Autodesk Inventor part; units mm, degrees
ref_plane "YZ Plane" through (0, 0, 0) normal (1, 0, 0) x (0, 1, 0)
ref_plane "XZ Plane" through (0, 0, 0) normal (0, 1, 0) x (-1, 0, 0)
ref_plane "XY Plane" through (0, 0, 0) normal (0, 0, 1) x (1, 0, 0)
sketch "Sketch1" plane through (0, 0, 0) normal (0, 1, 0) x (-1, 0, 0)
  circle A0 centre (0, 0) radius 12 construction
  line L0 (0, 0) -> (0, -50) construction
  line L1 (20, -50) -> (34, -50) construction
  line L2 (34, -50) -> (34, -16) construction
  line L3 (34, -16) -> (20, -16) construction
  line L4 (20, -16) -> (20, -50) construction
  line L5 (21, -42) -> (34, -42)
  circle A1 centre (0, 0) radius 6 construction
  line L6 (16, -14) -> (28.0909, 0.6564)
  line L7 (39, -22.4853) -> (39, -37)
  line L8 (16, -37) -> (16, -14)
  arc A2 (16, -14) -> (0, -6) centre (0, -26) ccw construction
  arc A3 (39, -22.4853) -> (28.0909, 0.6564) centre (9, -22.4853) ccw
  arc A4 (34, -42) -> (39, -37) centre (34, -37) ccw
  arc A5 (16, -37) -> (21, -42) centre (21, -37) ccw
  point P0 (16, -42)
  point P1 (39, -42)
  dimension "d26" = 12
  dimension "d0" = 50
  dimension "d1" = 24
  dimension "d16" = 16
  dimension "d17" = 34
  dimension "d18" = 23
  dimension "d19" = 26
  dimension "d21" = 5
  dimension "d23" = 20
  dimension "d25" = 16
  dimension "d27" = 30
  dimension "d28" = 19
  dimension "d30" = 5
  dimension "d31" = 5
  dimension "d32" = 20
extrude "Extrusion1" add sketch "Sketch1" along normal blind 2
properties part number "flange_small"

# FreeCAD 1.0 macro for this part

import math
import FreeCAD as App
import Part
import Sketcher

V = App.Vector
Q = App.Units.Quantity

doc = App.newDocument("Part")
body = doc.addObject("PartDesign::Body", "Body")

# Sketch on XZ plane
sketch1 = doc.addObject("Sketcher::SketchObject", "Sketch")
body.addObject(sketch1)
sketch1.AttachmentSupport = (doc.XZ_Plane, [""])
sketch1.MapMode = "FlatFace"
sketch1.addGeometry([
    Part.ArcOfCircle(Part.Circle(V(-21, -37, 0), V(0, 0, 1), 5), math.radians(-90), math.radians(0)),  # 0
    Part.LineSegment(V(-21, -42, 0), V(-34, -42, 0)),  # 1
    Part.ArcOfCircle(Part.Circle(V(-34, -37, 0), V(0, 0, 1), 5), math.radians(180), math.radians(270)),  # 2
    Part.LineSegment(V(-39, -37, 0), V(-39, -22, 0)),  # 3
    Part.ArcOfCircle(Part.Circle(V(-9, -22, 0), V(0, 0, 1), 30), math.radians(130), math.radians(180)),  # 4
    Part.LineSegment(V(-28, 1, 0), V(-16, -14, 0)),  # 5
    Part.LineSegment(V(-16, -14, 0), V(-16, -37, 0)),  # 6
], False)
sketch1.addConstraint([
    Sketcher.Constraint("Tangent", 0, 1, 1, 1),
    Sketcher.Constraint("Tangent", 1, 2, 2, 2),
    Sketcher.Constraint("Tangent", 2, 1, 3, 1),
    Sketcher.Constraint("Tangent", 3, 2, 4, 2),
    Sketcher.Constraint("Coincident", 4, 1, 5, 1),
    Sketcher.Constraint("Coincident", 5, 2, 6, 1),
    Sketcher.Constraint("Tangent", 6, 2, 0, 2),
    Sketcher.Constraint("Horizontal", 1),
    Sketcher.Constraint("Vertical", 3),
    Sketcher.Constraint("Vertical", 6),
    Sketcher.Constraint("Equal", 0, 2),
    Sketcher.Constraint("Radius", 0, 5.0),
    Sketcher.Constraint("Radius", 4, 30.0),
    Sketcher.Constraint("DistanceY", 6, 2, 6, 1, 23.0),
    Sketcher.Constraint("Distance", 5, 19.0),
    Sketcher.Constraint("DistanceX", 2, 3, -1, 1, 34.0),
    Sketcher.Constraint("DistanceX", 5, 2, -1, 1, 16.0),
    Sketcher.Constraint("DistanceY", 0, 3, -1, 1, 37.0),
    Sketcher.Constraint("Angle", 5, Q("-50.4788 deg")),
])
pad1 = doc.addObject("PartDesign::Pad", "Pad")
body.addObject(pad1)
pad1.Profile = sketch1
pad1.Length = 2
pad1.Reversed = True

doc.recompute()
